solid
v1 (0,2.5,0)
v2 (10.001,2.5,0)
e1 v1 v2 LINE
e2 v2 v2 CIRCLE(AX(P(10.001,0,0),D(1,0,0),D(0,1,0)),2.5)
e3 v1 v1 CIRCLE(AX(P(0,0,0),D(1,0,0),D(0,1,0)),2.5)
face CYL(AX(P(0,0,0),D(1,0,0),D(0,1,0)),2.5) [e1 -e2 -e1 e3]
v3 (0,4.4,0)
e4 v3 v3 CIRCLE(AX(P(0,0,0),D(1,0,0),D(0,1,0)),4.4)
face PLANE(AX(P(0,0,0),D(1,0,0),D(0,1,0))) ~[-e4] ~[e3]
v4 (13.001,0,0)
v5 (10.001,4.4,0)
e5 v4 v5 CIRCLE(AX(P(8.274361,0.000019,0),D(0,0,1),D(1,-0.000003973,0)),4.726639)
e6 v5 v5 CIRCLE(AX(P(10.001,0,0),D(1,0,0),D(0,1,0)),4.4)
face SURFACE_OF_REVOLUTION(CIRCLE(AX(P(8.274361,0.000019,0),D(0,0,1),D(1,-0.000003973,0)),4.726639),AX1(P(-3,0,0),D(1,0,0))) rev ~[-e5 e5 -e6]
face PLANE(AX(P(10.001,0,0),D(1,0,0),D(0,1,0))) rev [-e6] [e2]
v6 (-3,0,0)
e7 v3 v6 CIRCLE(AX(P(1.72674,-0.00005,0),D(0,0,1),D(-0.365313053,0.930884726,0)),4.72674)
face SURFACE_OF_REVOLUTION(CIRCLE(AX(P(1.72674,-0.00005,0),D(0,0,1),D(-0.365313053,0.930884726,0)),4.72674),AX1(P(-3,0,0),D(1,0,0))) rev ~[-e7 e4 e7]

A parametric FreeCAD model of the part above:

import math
import FreeCAD as App
import Part
import Sketcher
from FreeCAD import Vector

doc = App.newDocument("Part")
params = doc.addObject("Spreadsheet::Sheet", "Params")
for row, (alias, value) in enumerate([
    ("sketch1_height", "1.9 mm"),
    ("revolution_angle", "360 deg"),
], start=1):
    params.set(f"A{row}", alias)
    params.set(f"B{row}", "=" + value)
    params.setAlias(f"B{row}", alias)

body = doc.addObject("PartDesign::Body", "Body")

# Sketch on XY plane
sketch1 = body.newObject("Sketcher::SketchObject", "Sketch")
sketch1.AttachmentSupport = (doc.getObject("XY_Plane"), [""])
sketch1.MapMode = "FlatFace"
sketch1.addGeometry(Part.LineSegment(Vector(-3, 0, 0), Vector(13, 0, 0)), False)
sketch1.addGeometry(Part.ArcOfCircle(Part.Circle(Vector(8.3, 0, 0), Vector(0, 0, 1), 4.7), math.radians(0), math.radians(69)), False)
sketch1.addGeometry(Part.LineSegment(Vector(10, 4.4, 0), Vector(10, 2.5, 0)), False)
sketch1.addGeometry(Part.LineSegment(Vector(10, 2.5, 0), Vector(0, 2.5, 0)), False)
sketch1.addGeometry(Part.LineSegment(Vector(0, 2.5, 0), Vector(0, 4.4, 0)), False)
sketch1.addGeometry(Part.ArcOfCircle(Part.Circle(Vector(1.7, 0, 0), Vector(0, 0, 1), 4.7), math.radians(111), math.radians(180)), False)
sketch1.addConstraint(Sketcher.Constraint("Coincident", 0, 2, 1, 1))
sketch1.addConstraint(Sketcher.Constraint("Coincident", 1, 2, 2, 1))
sketch1.addConstraint(Sketcher.Constraint("Coincident", 2, 2, 3, 1))
sketch1.addConstraint(Sketcher.Constraint("Coincident", 3, 2, 4, 1))
sketch1.addConstraint(Sketcher.Constraint("Coincident", 4, 2, 5, 1))
sketch1.addConstraint(Sketcher.Constraint("Coincident", 5, 2, 0, 1))
sketch1.addConstraint(Sketcher.Constraint("Horizontal", 0))
sketch1.addConstraint(Sketcher.Constraint("Vertical", 2))
sketch1.addConstraint(Sketcher.Constraint("Horizontal", 3))
sketch1.addConstraint(Sketcher.Constraint("Vertical", 4))
sketch1.addConstraint(Sketcher.Constraint("Equal", 1, 5))
sketch1.addConstraint(Sketcher.Constraint("PointOnObject", 1, 3, -1))
sketch1.addConstraint(Sketcher.Constraint("PointOnObject", 5, 3, -1))
sketch1.addConstraint(Sketcher.Constraint("PointOnObject", 0, 2, -1))
sketch1.addConstraint(Sketcher.Constraint("PointOnObject", 3, 2, -2))
sketch1.addConstraint(Sketcher.Constraint("Horizontal", 1, 2, 4, 2))
sketch1.addConstraint(Sketcher.Constraint("DistanceX", 5, 2, -1, 1, 3.0))
sketch1.addConstraint(Sketcher.Constraint("DistanceX", 3, 2, 3, 1, 10.001))
sketch1.addConstraint(Sketcher.Constraint("DistanceY", 2, 2, 2, 1, 1.9))
sketch1.addConstraint(Sketcher.Constraint("DistanceY", -1, 1, 1, 2, 4.4))
sketch1.setExpression("Constraints[18]", "Params.sketch1_height")
revolution = body.newObject("PartDesign::Revolution", "Revolution")
revolution.Profile = sketch1
revolution.ReferenceAxis = (sketch1, ["H_Axis"])
revolution.setExpression("Angle", "Params.revolution_angle")

doc.recompute()
